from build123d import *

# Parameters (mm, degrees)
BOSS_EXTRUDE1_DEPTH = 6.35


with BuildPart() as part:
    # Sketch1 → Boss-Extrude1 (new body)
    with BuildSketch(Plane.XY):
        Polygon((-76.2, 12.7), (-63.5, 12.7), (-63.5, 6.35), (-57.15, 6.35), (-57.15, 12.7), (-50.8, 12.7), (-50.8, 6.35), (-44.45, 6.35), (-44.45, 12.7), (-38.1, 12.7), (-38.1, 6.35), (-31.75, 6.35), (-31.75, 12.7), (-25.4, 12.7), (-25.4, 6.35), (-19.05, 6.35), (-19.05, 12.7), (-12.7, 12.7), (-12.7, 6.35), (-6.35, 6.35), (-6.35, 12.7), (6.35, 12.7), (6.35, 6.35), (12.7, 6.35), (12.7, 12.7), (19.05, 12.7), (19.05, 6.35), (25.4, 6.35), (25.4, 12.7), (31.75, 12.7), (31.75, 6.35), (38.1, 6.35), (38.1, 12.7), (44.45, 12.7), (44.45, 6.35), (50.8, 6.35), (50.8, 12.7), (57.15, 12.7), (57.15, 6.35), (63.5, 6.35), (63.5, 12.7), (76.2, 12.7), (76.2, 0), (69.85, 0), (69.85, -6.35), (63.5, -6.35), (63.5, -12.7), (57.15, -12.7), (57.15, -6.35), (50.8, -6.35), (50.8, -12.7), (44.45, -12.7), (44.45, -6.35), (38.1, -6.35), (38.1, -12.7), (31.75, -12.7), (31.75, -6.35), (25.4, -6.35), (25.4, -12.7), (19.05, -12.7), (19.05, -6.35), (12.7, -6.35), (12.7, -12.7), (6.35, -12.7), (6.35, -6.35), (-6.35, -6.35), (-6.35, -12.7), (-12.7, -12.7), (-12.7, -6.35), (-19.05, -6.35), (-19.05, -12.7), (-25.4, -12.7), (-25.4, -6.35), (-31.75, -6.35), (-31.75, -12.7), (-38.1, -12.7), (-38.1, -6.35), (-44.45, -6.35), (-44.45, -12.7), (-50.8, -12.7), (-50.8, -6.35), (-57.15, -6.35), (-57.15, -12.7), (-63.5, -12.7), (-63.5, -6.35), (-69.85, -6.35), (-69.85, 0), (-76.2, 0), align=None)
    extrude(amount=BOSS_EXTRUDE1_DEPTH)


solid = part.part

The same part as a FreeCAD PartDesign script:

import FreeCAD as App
import Part
import Sketcher

V = App.Vector
Q = App.Units.Quantity


def add_polygon(sketch, points):
    """Adds a closed chain of lines whose ends are joined by coincident constraints."""
    first, n = sketch.GeometryCount, len(points)
    for a, b in zip(points, points[1:] + points[:1]):
        sketch.addGeometry(Part.LineSegment(App.Vector(*a, 0), App.Vector(*b, 0)), False)
    for i in range(n):
        sketch.addConstraint(Sketcher.Constraint("Coincident", first + i, 2, first + (i + 1) % n, 1))

doc = App.newDocument("Part")
body = doc.addObject("PartDesign::Body", "Body")

sketch1 = body.newObject("Sketcher::SketchObject", "Sketch")
sketch1.AttachmentSupport = (doc.getObject("XY_Plane"), [""])
sketch1.MapMode = "FlatFace"
add_polygon(sketch1, [(-63.5, 12.7), (-76.2, 12.7), (-76.2, 0), (-69.85, 0), (-69.85, -6.35), (-63.5, -6.35), (-63.5, -12.7), (-57.15, -12.7), (-57.15, -6.35), (-50.8, -6.35), (-50.8, -12.7), (-44.45, -12.7), (-44.45, -6.35), (-38.1, -6.35), (-38.1, -12.7), (-31.75, -12.7), (-31.75, -6.35), (-25.4, -6.35), (-25.4, -12.7), (-19.05, -12.7), (-19.05, -6.35), (-12.7, -6.35), (-12.7, -12.7), (-6.35, -12.7), (-6.35, -6.35), (6.35, -6.35), (6.35, -12.7), (12.7, -12.7), (12.7, -6.35), (19.05, -6.35), (19.05, -12.7), (25.4, -12.7), (25.4, -6.35), (31.75, -6.35), (31.75, -12.7), (38.1, -12.7), (38.1, -6.35), (44.45, -6.35), (44.45, -12.7), (50.8, -12.7), (50.8, -6.35), (57.15, -6.35), (57.15, -12.7), (63.5, -12.7), (63.5, -6.35), (69.85, -6.35), (69.85, 0), (76.2, 0), (76.2, 12.7), (63.5, 12.7), (63.5, 6.35), (57.15, 6.35), (57.15, 12.7), (50.8, 12.7), (50.8, 6.35), (44.45, 6.35), (44.45, 12.7), (38.1, 12.7), (38.1, 6.35), (31.75, 6.35), (31.75, 12.7), (25.4, 12.7), (25.4, 6.35), (19.05, 6.35), (19.05, 12.7), (12.7, 12.7), (12.7, 6.35), (6.35, 6.35), (6.35, 12.7), (-6.35, 12.7), (-6.35, 6.35), (-12.7, 6.35), (-12.7, 12.7), (-19.05, 12.7), (-19.05, 6.35), (-25.4, 6.35), (-25.4, 12.7), (-31.75, 12.7), (-31.75, 6.35), (-38.1, 6.35), (-38.1, 12.7), (-44.45, 12.7), (-44.45, 6.35), (-50.8, 6.35), (-50.8, 12.7), (-57.15, 12.7), (-57.15, 6.35), (-63.5, 6.35)])
sketch1.addConstraint([
    Sketcher.Constraint("Horizontal", 0),
    Sketcher.Constraint("Vertical", 1),
    Sketcher.Constraint("Horizontal", 2),
    Sketcher.Constraint("Vertical", 3),
    Sketcher.Constraint("Horizontal", 4),
    Sketcher.Constraint("Vertical", 5),
    Sketcher.Constraint("Horizontal", 6),
    Sketcher.Constraint("Vertical", 7),
    Sketcher.Constraint("Horizontal", 8),
    Sketcher.Constraint("Vertical", 9),
    Sketcher.Constraint("Horizontal", 10),
    Sketcher.Constraint("Vertical", 11),
    Sketcher.Constraint("Horizontal", 12),
    Sketcher.Constraint("Vertical", 13),
    Sketcher.Constraint("Horizontal", 14),
    Sketcher.Constraint("Vertical", 15),
    Sketcher.Constraint("Horizontal", 16),
    Sketcher.Constraint("Vertical", 17),
    Sketcher.Constraint("Horizontal", 18),
    Sketcher.Constraint("Vertical", 19),
    Sketcher.Constraint("Horizontal", 20),
    Sketcher.Constraint("Vertical", 21),
    Sketcher.Constraint("Horizontal", 22),
    Sketcher.Constraint("Vertical", 23),
    Sketcher.Constraint("Horizontal", 24),
    Sketcher.Constraint("Vertical", 25),
    Sketcher.Constraint("Horizontal", 26),
    Sketcher.Constraint("Vertical", 27),
    Sketcher.Constraint("Horizontal", 28),
    Sketcher.Constraint("Vertical", 29),
    Sketcher.Constraint("Horizontal", 30),
    Sketcher.Constraint("Vertical", 31),
    Sketcher.Constraint("Horizontal", 32),
    Sketcher.Constraint("Vertical", 33),
    Sketcher.Constraint("Horizontal", 34),
    Sketcher.Constraint("Vertical", 35),
    Sketcher.Constraint("Horizontal", 36),
    Sketcher.Constraint("Vertical", 37),
    Sketcher.Constraint("Horizontal", 38),
    Sketcher.Constraint("Vertical", 39),
    Sketcher.Constraint("Horizontal", 40),
    Sketcher.Constraint("Vertical", 41),
    Sketcher.Constraint("Horizontal", 42),
    Sketcher.Constraint("Vertical", 43),
    Sketcher.Constraint("Horizontal", 44),
    Sketcher.Constraint("Vertical", 45),
    Sketcher.Constraint("Horizontal", 46),
    Sketcher.Constraint("Vertical", 47),
    Sketcher.Constraint("Horizontal", 48),
    Sketcher.Constraint("Vertical", 49),
    Sketcher.Constraint("Horizontal", 50),
    Sketcher.Constraint("Vertical", 51),
    Sketcher.Constraint("Horizontal", 52),
    Sketcher.Constraint("Vertical", 53),
    Sketcher.Constraint("Horizontal", 54),
    Sketcher.Constraint("Vertical", 55),
    Sketcher.Constraint("Horizontal", 56),
    Sketcher.Constraint("Vertical", 57),
    Sketcher.Constraint("Horizontal", 58),
    Sketcher.Constraint("Vertical", 59),
    Sketcher.Constraint("Horizontal", 60),
    Sketcher.Constraint("Vertical", 61),
    Sketcher.Constraint("Horizontal", 62),
    Sketcher.Constraint("Vertical", 63),
    Sketcher.Constraint("Horizontal", 64),
    Sketcher.Constraint("Vertical", 65),
    Sketcher.Constraint("Horizontal", 66),
    Sketcher.Constraint("Vertical", 67),
    Sketcher.Constraint("Horizontal", 68),
    Sketcher.Constraint("Vertical", 69),
    Sketcher.Constraint("Horizontal", 70),
    Sketcher.Constraint("Vertical", 71),
    Sketcher.Constraint("Horizontal", 72),
    Sketcher.Constraint("Vertical", 73),
    Sketcher.Constraint("Horizontal", 74),
    Sketcher.Constraint("Vertical", 75),
    Sketcher.Constraint("Horizontal", 76),
    Sketcher.Constraint("Vertical", 77),
    Sketcher.Constraint("Horizontal", 78),
    Sketcher.Constraint("Vertical", 79),
    Sketcher.Constraint("Horizontal", 80),
    Sketcher.Constraint("Vertical", 81),
    Sketcher.Constraint("Horizontal", 82),
    Sketcher.Constraint("Vertical", 83),
    Sketcher.Constraint("Horizontal", 84),
    Sketcher.Constraint("Vertical", 85),
    Sketcher.Constraint("Horizontal", 86),
    Sketcher.Constraint("Vertical", 87),
    Sketcher.Constraint("Symmetric", 2, 2, 45, 2, -1, 1),
    Sketcher.Constraint("Symmetric", 5, 2, 48, 2, -1, 1),
    Sketcher.Constraint("Symmetric", 7, 2, 50, 2, -1, 1),
    Sketcher.Constraint("Symmetric", 9, 2, 52, 2, -1, 1),
    Sketcher.Constraint("Symmetric", 11, 2, 54, 2, -1, 1),
    Sketcher.Constraint("Symmetric", 13, 2, 56, 2, -1, 1),
    Sketcher.Constraint("Symmetric", 15, 2, 58, 2, -1, 1),
    Sketcher.Constraint("Symmetric", 17, 2, 60, 2, -1, 1),
    Sketcher.Constraint("Symmetric", 19, 2, 62, 2, -1, 1),
    Sketcher.Constraint("Symmetric", 21, 2, 64, 2, -1, 1),
    Sketcher.Constraint("Symmetric", 23, 2, 66, 2, -1, 1),
    Sketcher.Constraint("Symmetric", 25, 2, 68, 2, -1, 1),
    Sketcher.Constraint("Symmetric", 27, 2, 70, 2, -1, 1),
    Sketcher.Constraint("Symmetric", 29, 2, 72, 2, -1, 1),
    Sketcher.Constraint("Symmetric", 31, 2, 74, 2, -1, 1),
    Sketcher.Constraint("Symmetric", 33, 2, 76, 2, -1, 1),
    Sketcher.Constraint("Symmetric", 35, 2, 78, 2, -1, 1),
    Sketcher.Constraint("Symmetric", 37, 2, 80, 2, -1, 1),
    Sketcher.Constraint("Symmetric", 39, 2, 82, 2, -1, 1),
    Sketcher.Constraint("Symmetric", 41, 2, 84, 2, -1, 1),
    Sketcher.Constraint("Symmetric", 43, 2, 86, 2, -1, 1),
    Sketcher.Constraint("Symmetric", 22, 2, 25, 2, -2),
    Sketcher.Constraint("Symmetric", 20, 2, 27, 2, -2),
    Sketcher.Constraint("Symmetric", 18, 2, 29, 2, -2),
    Sketcher.Constraint("Symmetric", 16, 2, 31, 2, -2),
    Sketcher.Constraint("Symmetric", 14, 2, 33, 2, -2),
    Sketcher.Constraint("Symmetric", 12, 2, 35, 2, -2),
    Sketcher.Constraint("Symmetric", 10, 2, 37, 2, -2),
    Sketcher.Constraint("Symmetric", 8, 2, 39, 2, -2),
    Sketcher.Constraint("Symmetric", 6, 2, 41, 2, -2),
    Sketcher.Constraint("Symmetric", 4, 2, 43, 2, -2),
    Sketcher.Constraint("Symmetric", 1, 2, 46, 2, -2),
    Sketcher.Constraint("Horizontal", 4, 2, 7, 2),
    Sketcher.Constraint("Horizontal", 6, 2, 9, 2),
    Sketcher.Constraint("Horizontal", 8, 2, 11, 2),
    Sketcher.Constraint("Horizontal", 10, 2, 13, 2),
    Sketcher.Constraint("Horizontal", 12, 2, 15, 2),
    Sketcher.Constraint("Horizontal", 14, 2, 17, 2),
    Sketcher.Constraint("Horizontal", 16, 2, 19, 2),
    Sketcher.Constraint("Horizontal", 18, 2, 21, 2),
    Sketcher.Constraint("Horizontal", 20, 2, 23, 2),
    Sketcher.Constraint("Horizontal", 0, 2, 47, 2),
    Sketcher.Constraint("Equal", 2, 4),
    Sketcher.Constraint("Equal", 4, 6),
    Sketcher.Constraint("Equal", 6, 8),
    Sketcher.Constraint("Equal", 8, 10),
    Sketcher.Constraint("Equal", 10, 12),
    Sketcher.Constraint("Equal", 12, 14),
    Sketcher.Constraint("Equal", 14, 16),
    Sketcher.Constraint("Equal", 16, 18),
    Sketcher.Constraint("Equal", 18, 20),
    Sketcher.Constraint("Equal", 20, 22),
    Sketcher.Constraint("Equal", 0, 24),
    Sketcher.Constraint("Equal", 68, 1),
    Sketcher.Constraint("Equal", 86, 3),
    Sketcher.Constraint("DistanceX", 0, 2, 0, 1, Q("0.5 in")),
])
pad1 = body.newObject("PartDesign::Pad", "Pad")
pad1.Profile = sketch1
pad1.Length = Q("0.25 in")

doc.recompute()
